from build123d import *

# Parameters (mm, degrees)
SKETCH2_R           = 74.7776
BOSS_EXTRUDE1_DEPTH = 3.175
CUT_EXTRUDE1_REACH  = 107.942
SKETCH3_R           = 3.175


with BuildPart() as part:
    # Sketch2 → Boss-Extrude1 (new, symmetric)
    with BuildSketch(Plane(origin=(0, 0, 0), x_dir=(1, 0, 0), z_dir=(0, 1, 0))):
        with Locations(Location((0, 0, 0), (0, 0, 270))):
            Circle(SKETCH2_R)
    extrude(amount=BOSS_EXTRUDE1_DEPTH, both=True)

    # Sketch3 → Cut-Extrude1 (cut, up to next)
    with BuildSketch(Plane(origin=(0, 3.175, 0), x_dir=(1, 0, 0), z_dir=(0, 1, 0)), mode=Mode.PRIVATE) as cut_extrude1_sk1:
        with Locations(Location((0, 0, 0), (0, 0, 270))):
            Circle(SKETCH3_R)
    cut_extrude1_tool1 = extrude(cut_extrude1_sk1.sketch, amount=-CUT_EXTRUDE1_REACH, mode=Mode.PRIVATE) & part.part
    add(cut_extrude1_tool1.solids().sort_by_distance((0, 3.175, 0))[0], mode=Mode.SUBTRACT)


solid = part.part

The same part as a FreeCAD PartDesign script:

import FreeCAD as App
import Part
import Sketcher

V = App.Vector
Q = App.Units.Quantity

doc = App.newDocument("Part")
params = doc.addObject("Spreadsheet::Sheet", "Params")
for row, (alias, value) in enumerate([
    ("sketch1_diameter", "5.888 in"),
    ("pad1_length", "0.25 in"),
    ("sketch2_diameter", "0.25 in"),
], start=1):
    params.set(f"A{row}", alias)
    params.set(f"B{row}", "=" + value)
    params.setAlias(f"B{row}", alias)

body = doc.addObject("PartDesign::Body", "Body")

# Sketch on XZ plane
sketch1 = body.newObject("Sketcher::SketchObject", "Sketch")
sketch1.AttachmentSupport = (doc.getObject("XZ_Plane"), [""])
sketch1.MapMode = "FlatFace"
sketch1.addGeometry(Part.Circle(V(0, 0, 0), V(0, 0, 1), 75), False)
sketch1.addConstraint([
    Sketcher.Constraint("Coincident", 0, 3, -1, 1),
    Sketcher.Constraint("Diameter", 0, Q("5.888 in")),
])
sketch1.setExpression("Constraints[1]", "Params.sketch1_diameter")
pad1 = body.newObject("PartDesign::Pad", "Pad")
pad1.Profile = sketch1
pad1.setExpression("Length", "Params.pad1_length")
pad1.Midplane = True

# Sketch on XZ plane
sketch2 = body.newObject("Sketcher::SketchObject", "Sketch001")
sketch2.AttachmentSupport = (doc.getObject("XZ_Plane"), [""])
sketch2.MapMode = "FlatFace"
sketch2.AttachmentOffset = App.Placement(V(0, 0, -0.125 * 25.4), App.Rotation())
sketch2.addGeometry(Part.Circle(V(0, 0, 0), V(0, 0, 1), 3.2), False)
sketch2.addConstraint([
    Sketcher.Constraint("Coincident", 0, 3, -1, 1),
    Sketcher.Constraint("Diameter", 0, Q("0.25 in")),
])
sketch2.setExpression("Constraints[1]", "Params.sketch2_diameter")
pocket1 = body.newObject("PartDesign::Pocket", "Pocket")
pocket1.Profile = sketch2
pocket1.Type = "UpToFirst"
pocket1.Reversed = True

doc.recompute()
